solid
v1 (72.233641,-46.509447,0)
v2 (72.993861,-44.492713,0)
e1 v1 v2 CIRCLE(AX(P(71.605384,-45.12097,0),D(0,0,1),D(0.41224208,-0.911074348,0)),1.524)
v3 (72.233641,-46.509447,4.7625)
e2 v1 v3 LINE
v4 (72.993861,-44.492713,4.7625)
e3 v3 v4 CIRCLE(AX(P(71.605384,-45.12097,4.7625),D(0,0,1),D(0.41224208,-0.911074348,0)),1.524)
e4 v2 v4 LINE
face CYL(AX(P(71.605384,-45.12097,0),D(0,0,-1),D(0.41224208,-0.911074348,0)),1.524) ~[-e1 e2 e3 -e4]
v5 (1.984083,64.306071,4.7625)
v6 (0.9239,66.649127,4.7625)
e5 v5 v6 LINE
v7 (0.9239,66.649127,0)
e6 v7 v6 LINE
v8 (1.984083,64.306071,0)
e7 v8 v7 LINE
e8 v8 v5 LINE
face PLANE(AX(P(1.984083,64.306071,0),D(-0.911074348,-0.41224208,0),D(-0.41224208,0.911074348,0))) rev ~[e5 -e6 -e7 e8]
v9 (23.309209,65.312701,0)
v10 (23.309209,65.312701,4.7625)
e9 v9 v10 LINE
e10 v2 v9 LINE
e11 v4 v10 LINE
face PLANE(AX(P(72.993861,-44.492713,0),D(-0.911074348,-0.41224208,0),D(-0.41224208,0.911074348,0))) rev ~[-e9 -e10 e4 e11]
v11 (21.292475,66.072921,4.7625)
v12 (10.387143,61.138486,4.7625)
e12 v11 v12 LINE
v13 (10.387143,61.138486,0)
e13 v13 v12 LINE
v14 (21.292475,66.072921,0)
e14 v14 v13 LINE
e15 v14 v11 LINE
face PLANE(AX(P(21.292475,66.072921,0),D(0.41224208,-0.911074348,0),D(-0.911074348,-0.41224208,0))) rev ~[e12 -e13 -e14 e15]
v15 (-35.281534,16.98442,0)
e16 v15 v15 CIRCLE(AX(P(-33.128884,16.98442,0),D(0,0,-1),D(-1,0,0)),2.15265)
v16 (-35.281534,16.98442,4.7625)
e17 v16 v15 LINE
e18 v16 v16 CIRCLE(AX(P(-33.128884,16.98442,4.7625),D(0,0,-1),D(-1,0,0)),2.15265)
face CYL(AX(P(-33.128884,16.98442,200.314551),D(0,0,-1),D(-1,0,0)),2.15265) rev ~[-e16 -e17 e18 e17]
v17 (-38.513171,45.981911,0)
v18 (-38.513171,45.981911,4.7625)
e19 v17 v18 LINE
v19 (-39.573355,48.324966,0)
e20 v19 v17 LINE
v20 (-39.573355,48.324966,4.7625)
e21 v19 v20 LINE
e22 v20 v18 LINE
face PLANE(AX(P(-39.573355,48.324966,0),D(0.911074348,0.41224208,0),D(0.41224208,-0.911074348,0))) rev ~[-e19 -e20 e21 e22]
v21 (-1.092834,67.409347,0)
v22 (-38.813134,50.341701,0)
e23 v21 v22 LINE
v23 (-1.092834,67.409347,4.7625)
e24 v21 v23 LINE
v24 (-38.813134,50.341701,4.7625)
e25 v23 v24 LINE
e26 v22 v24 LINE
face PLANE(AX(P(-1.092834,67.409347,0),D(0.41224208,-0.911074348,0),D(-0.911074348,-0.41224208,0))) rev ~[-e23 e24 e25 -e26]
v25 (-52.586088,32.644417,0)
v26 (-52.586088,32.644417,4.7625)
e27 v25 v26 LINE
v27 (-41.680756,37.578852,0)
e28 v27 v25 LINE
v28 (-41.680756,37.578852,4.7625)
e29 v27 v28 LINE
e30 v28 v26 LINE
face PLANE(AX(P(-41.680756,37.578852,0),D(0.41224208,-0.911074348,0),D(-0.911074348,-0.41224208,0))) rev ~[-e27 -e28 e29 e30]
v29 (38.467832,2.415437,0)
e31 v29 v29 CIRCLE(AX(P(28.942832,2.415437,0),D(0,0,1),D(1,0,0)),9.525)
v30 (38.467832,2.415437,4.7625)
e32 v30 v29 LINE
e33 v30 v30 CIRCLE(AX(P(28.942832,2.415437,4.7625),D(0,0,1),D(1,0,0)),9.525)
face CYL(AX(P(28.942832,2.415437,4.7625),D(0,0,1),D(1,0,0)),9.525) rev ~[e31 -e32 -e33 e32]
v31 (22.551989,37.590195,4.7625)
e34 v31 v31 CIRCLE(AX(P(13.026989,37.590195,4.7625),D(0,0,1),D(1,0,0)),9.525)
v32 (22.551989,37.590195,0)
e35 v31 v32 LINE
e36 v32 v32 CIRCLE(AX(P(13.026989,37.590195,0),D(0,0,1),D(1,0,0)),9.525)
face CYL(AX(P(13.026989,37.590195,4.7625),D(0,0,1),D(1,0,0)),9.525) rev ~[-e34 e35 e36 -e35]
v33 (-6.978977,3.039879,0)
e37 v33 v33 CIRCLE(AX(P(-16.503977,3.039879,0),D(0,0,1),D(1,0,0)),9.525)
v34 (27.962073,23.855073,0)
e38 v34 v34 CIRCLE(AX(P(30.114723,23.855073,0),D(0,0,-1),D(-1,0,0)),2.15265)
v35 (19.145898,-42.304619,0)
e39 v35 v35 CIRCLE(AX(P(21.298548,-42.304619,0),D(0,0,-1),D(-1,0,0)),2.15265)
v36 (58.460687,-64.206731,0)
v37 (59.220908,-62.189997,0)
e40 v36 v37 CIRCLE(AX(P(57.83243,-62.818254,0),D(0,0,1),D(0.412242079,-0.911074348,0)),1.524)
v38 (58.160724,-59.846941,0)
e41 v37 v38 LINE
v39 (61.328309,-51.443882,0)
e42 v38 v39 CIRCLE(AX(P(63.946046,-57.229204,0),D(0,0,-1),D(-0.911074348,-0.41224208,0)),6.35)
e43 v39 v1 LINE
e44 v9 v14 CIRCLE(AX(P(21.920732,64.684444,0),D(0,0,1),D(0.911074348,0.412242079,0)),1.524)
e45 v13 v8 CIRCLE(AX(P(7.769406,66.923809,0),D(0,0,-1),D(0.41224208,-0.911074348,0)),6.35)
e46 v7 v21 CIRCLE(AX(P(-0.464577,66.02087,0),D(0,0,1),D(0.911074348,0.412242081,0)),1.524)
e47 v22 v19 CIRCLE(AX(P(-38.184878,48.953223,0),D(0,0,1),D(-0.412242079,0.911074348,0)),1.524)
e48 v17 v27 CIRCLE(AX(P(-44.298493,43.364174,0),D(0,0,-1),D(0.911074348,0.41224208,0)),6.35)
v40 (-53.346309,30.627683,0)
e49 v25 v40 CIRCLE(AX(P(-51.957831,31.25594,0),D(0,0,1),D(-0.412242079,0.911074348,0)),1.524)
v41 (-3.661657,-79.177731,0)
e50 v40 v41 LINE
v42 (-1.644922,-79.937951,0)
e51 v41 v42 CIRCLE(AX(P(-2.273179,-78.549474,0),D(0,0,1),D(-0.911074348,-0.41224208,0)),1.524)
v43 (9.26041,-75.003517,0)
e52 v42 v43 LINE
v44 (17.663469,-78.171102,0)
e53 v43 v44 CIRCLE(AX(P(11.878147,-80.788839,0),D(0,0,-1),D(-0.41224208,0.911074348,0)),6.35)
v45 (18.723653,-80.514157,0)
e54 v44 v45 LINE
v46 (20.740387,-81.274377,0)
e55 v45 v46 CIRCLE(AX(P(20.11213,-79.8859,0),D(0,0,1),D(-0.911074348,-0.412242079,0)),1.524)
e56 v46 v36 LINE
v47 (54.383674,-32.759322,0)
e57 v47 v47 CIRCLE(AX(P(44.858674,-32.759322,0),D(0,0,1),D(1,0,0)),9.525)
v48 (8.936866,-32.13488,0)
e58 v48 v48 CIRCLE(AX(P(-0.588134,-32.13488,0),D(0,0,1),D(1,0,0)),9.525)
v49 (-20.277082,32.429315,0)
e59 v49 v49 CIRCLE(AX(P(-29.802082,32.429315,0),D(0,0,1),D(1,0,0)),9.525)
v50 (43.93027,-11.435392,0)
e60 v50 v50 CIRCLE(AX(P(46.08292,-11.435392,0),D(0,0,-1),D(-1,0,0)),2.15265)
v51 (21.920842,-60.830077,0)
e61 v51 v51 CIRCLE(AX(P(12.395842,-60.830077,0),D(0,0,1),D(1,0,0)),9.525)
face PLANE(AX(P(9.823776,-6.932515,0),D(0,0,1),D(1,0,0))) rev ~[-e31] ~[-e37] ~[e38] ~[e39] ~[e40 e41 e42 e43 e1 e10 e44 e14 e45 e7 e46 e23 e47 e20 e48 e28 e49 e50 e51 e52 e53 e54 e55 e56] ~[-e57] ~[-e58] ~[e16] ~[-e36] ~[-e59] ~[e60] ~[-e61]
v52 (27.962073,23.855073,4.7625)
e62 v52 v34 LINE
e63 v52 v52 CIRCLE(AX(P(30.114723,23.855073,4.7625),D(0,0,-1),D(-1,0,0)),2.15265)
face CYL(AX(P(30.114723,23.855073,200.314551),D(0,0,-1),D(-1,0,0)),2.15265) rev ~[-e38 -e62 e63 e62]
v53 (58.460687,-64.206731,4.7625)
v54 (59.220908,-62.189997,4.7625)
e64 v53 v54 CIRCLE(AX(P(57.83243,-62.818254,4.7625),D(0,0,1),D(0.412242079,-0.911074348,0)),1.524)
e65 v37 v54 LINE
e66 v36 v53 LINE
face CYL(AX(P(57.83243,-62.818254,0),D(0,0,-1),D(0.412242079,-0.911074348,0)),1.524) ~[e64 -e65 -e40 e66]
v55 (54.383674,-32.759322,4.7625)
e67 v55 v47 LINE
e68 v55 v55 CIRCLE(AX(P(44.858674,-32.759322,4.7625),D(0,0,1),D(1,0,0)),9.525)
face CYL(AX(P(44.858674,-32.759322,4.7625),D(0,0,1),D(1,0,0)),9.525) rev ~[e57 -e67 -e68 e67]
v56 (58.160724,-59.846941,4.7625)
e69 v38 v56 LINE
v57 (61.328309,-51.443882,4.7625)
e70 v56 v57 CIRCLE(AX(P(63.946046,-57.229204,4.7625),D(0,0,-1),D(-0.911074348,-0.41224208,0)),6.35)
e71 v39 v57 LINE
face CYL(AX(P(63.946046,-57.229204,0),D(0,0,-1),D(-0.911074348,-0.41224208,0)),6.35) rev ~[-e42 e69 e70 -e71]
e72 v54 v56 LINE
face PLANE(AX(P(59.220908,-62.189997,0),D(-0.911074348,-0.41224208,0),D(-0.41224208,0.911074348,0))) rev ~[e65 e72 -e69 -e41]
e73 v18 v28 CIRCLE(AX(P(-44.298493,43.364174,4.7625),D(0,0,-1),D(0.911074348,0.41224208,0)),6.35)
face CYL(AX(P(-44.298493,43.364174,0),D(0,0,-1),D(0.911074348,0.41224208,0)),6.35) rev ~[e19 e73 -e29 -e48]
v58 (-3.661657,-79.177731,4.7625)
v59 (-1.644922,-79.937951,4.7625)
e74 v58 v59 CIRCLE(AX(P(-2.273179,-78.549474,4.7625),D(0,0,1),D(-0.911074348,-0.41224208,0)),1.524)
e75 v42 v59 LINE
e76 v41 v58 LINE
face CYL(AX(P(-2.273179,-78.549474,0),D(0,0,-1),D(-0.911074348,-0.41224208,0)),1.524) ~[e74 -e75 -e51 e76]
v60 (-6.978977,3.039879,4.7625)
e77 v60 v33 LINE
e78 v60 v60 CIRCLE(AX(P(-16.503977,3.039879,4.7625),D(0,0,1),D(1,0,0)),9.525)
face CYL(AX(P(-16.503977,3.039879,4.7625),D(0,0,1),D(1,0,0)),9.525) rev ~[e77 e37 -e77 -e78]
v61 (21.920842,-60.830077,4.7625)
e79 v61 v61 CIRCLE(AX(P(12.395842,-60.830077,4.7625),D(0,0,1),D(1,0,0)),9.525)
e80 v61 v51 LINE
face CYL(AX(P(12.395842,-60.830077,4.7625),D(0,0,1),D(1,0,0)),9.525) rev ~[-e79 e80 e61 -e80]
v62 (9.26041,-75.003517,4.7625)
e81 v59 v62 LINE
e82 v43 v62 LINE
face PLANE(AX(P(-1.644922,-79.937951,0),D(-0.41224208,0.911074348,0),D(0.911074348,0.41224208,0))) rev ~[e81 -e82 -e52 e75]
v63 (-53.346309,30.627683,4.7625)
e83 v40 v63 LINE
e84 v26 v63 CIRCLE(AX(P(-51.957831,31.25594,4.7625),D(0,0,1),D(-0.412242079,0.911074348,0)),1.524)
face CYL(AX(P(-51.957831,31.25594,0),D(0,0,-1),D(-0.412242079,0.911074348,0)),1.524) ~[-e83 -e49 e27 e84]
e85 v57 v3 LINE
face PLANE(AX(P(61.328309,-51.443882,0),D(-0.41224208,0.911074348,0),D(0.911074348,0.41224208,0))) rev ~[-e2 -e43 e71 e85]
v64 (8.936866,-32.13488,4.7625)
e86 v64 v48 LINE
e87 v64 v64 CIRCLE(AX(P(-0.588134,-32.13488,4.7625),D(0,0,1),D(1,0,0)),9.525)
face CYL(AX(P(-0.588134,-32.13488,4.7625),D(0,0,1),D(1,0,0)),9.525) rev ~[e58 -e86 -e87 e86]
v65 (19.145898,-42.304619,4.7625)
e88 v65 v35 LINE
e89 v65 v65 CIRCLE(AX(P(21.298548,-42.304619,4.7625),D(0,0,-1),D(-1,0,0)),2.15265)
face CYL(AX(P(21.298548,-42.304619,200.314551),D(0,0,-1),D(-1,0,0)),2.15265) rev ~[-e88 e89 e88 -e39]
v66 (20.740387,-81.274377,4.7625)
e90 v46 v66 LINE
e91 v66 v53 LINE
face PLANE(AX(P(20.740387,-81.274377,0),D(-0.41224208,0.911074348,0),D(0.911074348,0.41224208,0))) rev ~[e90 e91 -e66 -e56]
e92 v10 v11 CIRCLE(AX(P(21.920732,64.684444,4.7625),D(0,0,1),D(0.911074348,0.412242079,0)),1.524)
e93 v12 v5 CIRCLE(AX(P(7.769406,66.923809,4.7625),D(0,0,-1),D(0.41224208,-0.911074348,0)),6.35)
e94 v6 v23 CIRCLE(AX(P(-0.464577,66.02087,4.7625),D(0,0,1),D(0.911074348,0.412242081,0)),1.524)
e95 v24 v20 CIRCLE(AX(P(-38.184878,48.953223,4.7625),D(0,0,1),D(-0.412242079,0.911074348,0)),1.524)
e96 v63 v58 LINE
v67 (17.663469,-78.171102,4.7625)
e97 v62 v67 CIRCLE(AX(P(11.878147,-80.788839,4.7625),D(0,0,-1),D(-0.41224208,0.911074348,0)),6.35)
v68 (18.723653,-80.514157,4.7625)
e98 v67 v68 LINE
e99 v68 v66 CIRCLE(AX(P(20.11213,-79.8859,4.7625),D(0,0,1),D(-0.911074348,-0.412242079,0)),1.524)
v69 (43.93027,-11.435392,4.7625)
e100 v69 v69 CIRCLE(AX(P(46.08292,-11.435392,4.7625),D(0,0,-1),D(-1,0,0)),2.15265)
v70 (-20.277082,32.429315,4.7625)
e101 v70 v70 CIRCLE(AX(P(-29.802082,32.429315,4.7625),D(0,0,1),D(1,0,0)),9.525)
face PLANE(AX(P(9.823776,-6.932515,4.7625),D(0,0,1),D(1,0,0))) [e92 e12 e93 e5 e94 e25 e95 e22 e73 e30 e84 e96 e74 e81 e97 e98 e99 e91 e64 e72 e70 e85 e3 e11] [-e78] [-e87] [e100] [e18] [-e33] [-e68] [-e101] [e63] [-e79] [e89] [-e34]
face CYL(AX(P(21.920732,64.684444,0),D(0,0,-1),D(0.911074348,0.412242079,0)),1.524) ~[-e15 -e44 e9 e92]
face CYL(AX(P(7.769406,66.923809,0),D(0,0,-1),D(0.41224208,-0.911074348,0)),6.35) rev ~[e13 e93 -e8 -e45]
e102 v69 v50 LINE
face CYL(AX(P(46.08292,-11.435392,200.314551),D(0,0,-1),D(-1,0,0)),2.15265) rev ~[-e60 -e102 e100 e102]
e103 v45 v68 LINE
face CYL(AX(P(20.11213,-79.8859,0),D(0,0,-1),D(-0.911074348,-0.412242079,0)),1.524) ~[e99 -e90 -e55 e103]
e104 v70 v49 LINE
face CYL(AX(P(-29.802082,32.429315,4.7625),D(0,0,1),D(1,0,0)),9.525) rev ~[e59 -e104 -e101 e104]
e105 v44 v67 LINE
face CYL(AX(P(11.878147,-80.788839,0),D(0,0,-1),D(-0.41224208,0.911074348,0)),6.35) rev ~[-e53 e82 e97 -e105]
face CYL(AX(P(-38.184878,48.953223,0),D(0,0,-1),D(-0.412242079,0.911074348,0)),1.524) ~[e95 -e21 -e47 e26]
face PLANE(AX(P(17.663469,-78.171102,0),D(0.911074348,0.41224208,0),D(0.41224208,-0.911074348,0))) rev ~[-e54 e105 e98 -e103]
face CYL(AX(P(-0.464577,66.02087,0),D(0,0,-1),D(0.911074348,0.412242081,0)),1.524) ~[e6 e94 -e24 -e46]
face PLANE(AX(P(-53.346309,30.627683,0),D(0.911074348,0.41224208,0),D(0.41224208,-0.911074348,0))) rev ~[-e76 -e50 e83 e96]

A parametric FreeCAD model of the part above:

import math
import FreeCAD as App
import Part
import Sketcher
Q = App.Units.Quantity

doc = App.newDocument("Part")
params = doc.addObject("Spreadsheet::Sheet", "Params")
for row, (alias, value) in enumerate([
    ("sketch1_radius", "0.06 in"),
    ("sketch1_radius2", "0.25 in"),
    ("sketch1_length", "1.63 in"),
    ("sketch1_length2", "4.745 in"),
    ("pad1_length", "0.1875 in"),
    ("hole_diameter", "0.1695 in"),
    ("sketch3_diameter", "0.75 in"),
], start=1):
    params.set(f"A{row}", alias)
    params.set(f"B{row}", "=" + value)
    params.setAlias(f"B{row}", alias)

body = doc.addObject("PartDesign::Body", "Body")

sketch1 = doc.addObject("Sketcher::SketchObject", "Sketch")
body.addObject(sketch1)
sketch1.AttachmentSupport = (doc.XY_Plane, [""])
sketch1.MapMode = "FlatFace"
sketch1.addGeometry([
    Part.LineSegment(App.Vector(61.3, -51.4, 0), App.Vector(72.2, -46.5, 0)),
    Part.ArcOfCircle(Part.Circle(App.Vector(71.6, -45.1, 0), App.Vector(0, 0, 1), 1.5), math.radians(-66), math.radians(24)),
    Part.LineSegment(App.Vector(73, -44.5, 0), App.Vector(23.3, 65.3, 0)),
    Part.ArcOfCircle(Part.Circle(App.Vector(21.9, 64.7, 0), App.Vector(0, 0, 1), 1.5), math.radians(24), math.radians(114)),
    Part.LineSegment(App.Vector(21.3, 66.1, 0), App.Vector(10.4, 61.1, 0)),
    Part.ArcOfCircle(Part.Circle(App.Vector(7.8, 66.9, 0), App.Vector(0, 0, 1), 6.3), math.radians(-156), math.radians(-66)),
    Part.LineSegment(App.Vector(2, 64.3, 0), App.Vector(0.9, 66.6, 0)),
    Part.ArcOfCircle(Part.Circle(App.Vector(-0.5, 66, 0), App.Vector(0, 0, 1), 1.5), math.radians(24), math.radians(114)),
    Part.LineSegment(App.Vector(-1.1, 67.4, 0), App.Vector(-38.8, 50.3, 0)),
    Part.ArcOfCircle(Part.Circle(App.Vector(-38.2, 49, 0), App.Vector(0, 0, 1), 1.5), math.radians(114), math.radians(204)),
    Part.LineSegment(App.Vector(-39.6, 48.3, 0), App.Vector(-38.5, 46, 0)),
    Part.ArcOfCircle(Part.Circle(App.Vector(-44.3, 43.4, 0), App.Vector(0, 0, 1), 6.3), math.radians(-66), math.radians(24)),
    Part.LineSegment(App.Vector(-41.7, 37.6, 0), App.Vector(-52.6, 32.6, 0)),
    Part.ArcOfCircle(Part.Circle(App.Vector(-52, 31.3, 0), App.Vector(0, 0, 1), 1.5), math.radians(114), math.radians(204)),
    Part.LineSegment(App.Vector(-53.3, 30.6, 0), App.Vector(-3.7, -79.2, 0)),
    Part.ArcOfCircle(Part.Circle(App.Vector(-2.3, -78.5, 0), App.Vector(0, 0, 1), 1.5), math.radians(-156), math.radians(-66)),
    Part.LineSegment(App.Vector(-1.6, -79.9, 0), App.Vector(9.3, -75, 0)),
    Part.ArcOfCircle(Part.Circle(App.Vector(11.9, -80.8, 0), App.Vector(0, 0, 1), 6.3), math.radians(24), math.radians(114)),
    Part.LineSegment(App.Vector(17.7, -78.2, 0), App.Vector(18.7, -80.5, 0)),
    Part.ArcOfCircle(Part.Circle(App.Vector(20.1, -79.9, 0), App.Vector(0, 0, 1), 1.5), math.radians(-156), math.radians(-66)),
    Part.LineSegment(App.Vector(20.7, -81.3, 0), App.Vector(58.5, -64.2, 0)),
    Part.ArcOfCircle(Part.Circle(App.Vector(57.8, -62.8, 0), App.Vector(0, 0, 1), 1.5), math.radians(-66), math.radians(24)),
    Part.LineSegment(App.Vector(59.2, -62.2, 0), App.Vector(58.2, -59.8, 0)),
    Part.ArcOfCircle(Part.Circle(App.Vector(63.9, -57.2, 0), App.Vector(0, 0, 1), 6.3), math.radians(114), math.radians(204)),
], False)
sketch1.addConstraint([
    Sketcher.Constraint("Tangent", 0, 2, 1, 1),
    Sketcher.Constraint("Tangent", 1, 2, 2, 1),
    Sketcher.Constraint("Tangent", 2, 2, 3, 1),
    Sketcher.Constraint("Tangent", 3, 2, 4, 1),
    Sketcher.Constraint("Tangent", 4, 2, 5, 2),
    Sketcher.Constraint("Tangent", 5, 1, 6, 1),
    Sketcher.Constraint("Tangent", 6, 2, 7, 1),
    Sketcher.Constraint("Tangent", 7, 2, 8, 1),
    Sketcher.Constraint("Tangent", 8, 2, 9, 1),
    Sketcher.Constraint("Tangent", 9, 2, 10, 1),
    Sketcher.Constraint("Tangent", 10, 2, 11, 2),
    Sketcher.Constraint("Tangent", 11, 1, 12, 1),
    Sketcher.Constraint("Tangent", 12, 2, 13, 1),
    Sketcher.Constraint("Tangent", 13, 2, 14, 1),
    Sketcher.Constraint("Tangent", 14, 2, 15, 1),
    Sketcher.Constraint("Tangent", 15, 2, 16, 1),
    Sketcher.Constraint("Tangent", 16, 2, 17, 2),
    Sketcher.Constraint("Tangent", 17, 1, 18, 1),
    Sketcher.Constraint("Tangent", 18, 2, 19, 1),
    Sketcher.Constraint("Tangent", 19, 2, 20, 1),
    Sketcher.Constraint("Tangent", 20, 2, 21, 1),
    Sketcher.Constraint("Tangent", 21, 2, 22, 1),
    Sketcher.Constraint("Tangent", 22, 2, 23, 2),
    Sketcher.Constraint("Tangent", 23, 1, 0, 1),
    Sketcher.Constraint("Equal", 1, 3),
    Sketcher.Constraint("Equal", 3, 7),
    Sketcher.Constraint("Equal", 7, 9),
    Sketcher.Constraint("Equal", 5, 11),
    Sketcher.Constraint("Equal", 9, 13),
    Sketcher.Constraint("Equal", 13, 15),
    Sketcher.Constraint("Equal", 11, 17),
    Sketcher.Constraint("Equal", 15, 19),
    Sketcher.Constraint("Equal", 19, 21),
    Sketcher.Constraint("Equal", 17, 23),
    Sketcher.Constraint("Perpendicular", 0, 2),
    Sketcher.Constraint("Perpendicular", 2, 4),
    Sketcher.Constraint("Perpendicular", 4, 6),
    Sketcher.Constraint("Perpendicular", 6, 8),
    Sketcher.Constraint("Perpendicular", 8, 10),
    Sketcher.Constraint("Perpendicular", 10, 12),
    Sketcher.Constraint("Perpendicular", 12, 14),
    Sketcher.Constraint("Perpendicular", 14, 16),
    Sketcher.Constraint("Perpendicular", 16, 18),
    Sketcher.Constraint("Perpendicular", 18, 20),
    Sketcher.Constraint("Perpendicular", 20, 22),
    Sketcher.Constraint("Equal", 0, 4),
    Sketcher.Constraint("Equal", 6, 10),
    Sketcher.Constraint("Equal", 4, 12),
    Sketcher.Constraint("Equal", 2, 14),
    Sketcher.Constraint("Equal", 12, 16),
    Sketcher.Constraint("Equal", 10, 18),
    Sketcher.Constraint("Radius", 1, Q("0.06 in")),
    Sketcher.Constraint("Radius", 5, Q("0.25 in")),
    Sketcher.Constraint("Distance", 8, Q("1.63 in")),
    Sketcher.Constraint("Distance", 2, Q("4.745 in")),
    Sketcher.Constraint("DistanceX", 7, 3, 1, 3, Q("2.8374001 in")),
    Sketcher.Constraint("DistanceY", 19, 3, -1, 1, 79.8859),
    Sketcher.Constraint("DistanceY", -1, 1, 2, 2, 65.312701),
    Sketcher.Constraint("DistanceX", -1, 1, 6, 2, 0.9239),
    Sketcher.Constraint("DistanceY", -1, 1, 8, 2, 50.341701),
])
sketch1.setExpression("Constraints[51]", "Params.sketch1_radius")
sketch1.setExpression("Constraints[52]", "Params.sketch1_radius2")
sketch1.setExpression("Constraints[53]", "Params.sketch1_length")
sketch1.setExpression("Constraints[54]", "Params.sketch1_length2")
pad1 = doc.addObject("PartDesign::Pad", "Pad")
body.addObject(pad1)
pad1.Profile = sketch1
pad1.setExpression("Length", "Params.pad1_length")

sketch2 = doc.addObject("Sketcher::SketchObject", "Sketch001")
body.addObject(sketch2)
sketch2.AttachmentSupport = (doc.XY_Plane, [""])
sketch2.MapMode = "FlatFace"
sketch2.AttachmentOffset = App.Placement(App.Vector(0, 0, 0.1875 * 25.4), App.Rotation())
sketch2.addGeometry([
    Part.Circle(App.Vector(30.1, 23.9, 0), App.Vector(0, 0, 1), 2.2),
    Part.Circle(App.Vector(46.1, -11.4, 0), App.Vector(0, 0, 1), 2.2),
    Part.Circle(App.Vector(-33.1, 17, 0), App.Vector(0, 0, 1), 2.2),
    Part.Circle(App.Vector(21.3, -42.3, 0), App.Vector(0, 0, 1), 2.2),
], False)
sketch2.addConstraint([
    Sketcher.Constraint("Equal", 0, 1),
    Sketcher.Constraint("Equal", 1, 2),
    Sketcher.Constraint("Equal", 2, 3),
    Sketcher.Constraint("Diameter", 0, Q("0.1695 in")),
    Sketcher.Constraint("DistanceX", -1, 1, 1, 3, 46.08292),
    Sketcher.Constraint("DistanceY", 1, 3, -1, 1, 11.435392),
    Sketcher.Constraint("DistanceY", -1, 1, 2, 3, 16.98442),
    Sketcher.Constraint("DistanceY", 3, 3, -1, 1, 42.304619),
    Sketcher.Constraint("DistanceX", 2, 3, 3, 3, 54.427432),
    Sketcher.Constraint("DistanceX", -1, 1, 0, 3, 30.114723),
    Sketcher.Constraint("DistanceY", -1, 1, 0, 3, 23.855073),
    Sketcher.Constraint("DistanceX", 2, 3, -1, 1, 33.128884),
])
doc.recompute()
hole = doc.addObject("PartDesign::Hole", "Hole")
body.addObject(hole)
hole.Profile = sketch2
hole.ThreadType = "None"
hole.setExpression("Diameter", "Params.hole_diameter")
hole.DepthType = "ThroughAll"

sketch3 = doc.addObject("Sketcher::SketchObject", "Sketch002")
body.addObject(sketch3)
sketch3.AttachmentSupport = (doc.XY_Plane, [""])
sketch3.MapMode = "FlatFace"
sketch3.AttachmentOffset = App.Placement(App.Vector(0, 0, 0.1875 * 25.4), App.Rotation())
sketch3.addGeometry([
    Part.Circle(App.Vector(13, 38, 0), App.Vector(0, 0, 1), 10),
    Part.Circle(App.Vector(29, 2, 0), App.Vector(0, 0, 1), 10),
    Part.Circle(App.Vector(45, -33, 0), App.Vector(0, 0, 1), 10),
    Part.Circle(App.Vector(-17, 3, 0), App.Vector(0, 0, 1), 10),
    Part.Circle(App.Vector(-1, -32, 0), App.Vector(0, 0, 1), 10),
    Part.Circle(App.Vector(-30, 32, 0), App.Vector(0, 0, 1), 10),
    Part.Circle(App.Vector(12, -61, 0), App.Vector(0, 0, 1), 10),
], False)
sketch3.addConstraint([
    Sketcher.Constraint("Equal", 0, 1),
    Sketcher.Constraint("Equal", 1, 2),
    Sketcher.Constraint("Equal", 2, 3),
    Sketcher.Constraint("Equal", 3, 4),
    Sketcher.Constraint("Equal", 4, 5),
    Sketcher.Constraint("Equal", 5, 6),
    Sketcher.Constraint("Diameter", 0, Q("0.75 in")),
    Sketcher.Constraint("DistanceX", 5, 3, 2, 3, Q("2.9393998 in")),
    Sketcher.Constraint("DistanceY", 2, 3, 3, 3, 35.799201),
    Sketcher.Constraint("DistanceX", -1, 1, 0, 3, 13.026989),
    Sketcher.Constraint("DistanceX", -1, 1, 1, 3, 28.942832),
    Sketcher.Constraint("DistanceY", 2, 3, -1, 1, 32.759322),
    Sketcher.Constraint("DistanceY", 4, 3, -1, 1, 32.13488),
    Sketcher.Constraint("DistanceX", 5, 3, -1, 1, 29.802082),
    Sketcher.Constraint("DistanceY", 1, 3, 0, 3, 35.174758),
    Sketcher.Constraint("DistanceY", 2, 3, 1, 3, 35.174758),
    Sketcher.Constraint("DistanceX", 3, 3, 1, 3, 45.446808),
    Sketcher.Constraint("DistanceX", 4, 3, 2, 3, 45.446808),
    Sketcher.Constraint("DistanceY", 5, 3, 0, 3, 5.16088),
    Sketcher.Constraint("DistanceX", 6, 3, 2, 3, 32.462832),
    Sketcher.Constraint("DistanceY", 6, 3, -1, 1, 60.830077),
])
sketch3.setExpression("Constraints[6]", "Params.sketch3_diameter")
pocket1 = doc.addObject("PartDesign::Pocket", "Pocket")
body.addObject(pocket1)
pocket1.Profile = sketch3
pocket1.Type = "ThroughAll"

doc.recompute()
